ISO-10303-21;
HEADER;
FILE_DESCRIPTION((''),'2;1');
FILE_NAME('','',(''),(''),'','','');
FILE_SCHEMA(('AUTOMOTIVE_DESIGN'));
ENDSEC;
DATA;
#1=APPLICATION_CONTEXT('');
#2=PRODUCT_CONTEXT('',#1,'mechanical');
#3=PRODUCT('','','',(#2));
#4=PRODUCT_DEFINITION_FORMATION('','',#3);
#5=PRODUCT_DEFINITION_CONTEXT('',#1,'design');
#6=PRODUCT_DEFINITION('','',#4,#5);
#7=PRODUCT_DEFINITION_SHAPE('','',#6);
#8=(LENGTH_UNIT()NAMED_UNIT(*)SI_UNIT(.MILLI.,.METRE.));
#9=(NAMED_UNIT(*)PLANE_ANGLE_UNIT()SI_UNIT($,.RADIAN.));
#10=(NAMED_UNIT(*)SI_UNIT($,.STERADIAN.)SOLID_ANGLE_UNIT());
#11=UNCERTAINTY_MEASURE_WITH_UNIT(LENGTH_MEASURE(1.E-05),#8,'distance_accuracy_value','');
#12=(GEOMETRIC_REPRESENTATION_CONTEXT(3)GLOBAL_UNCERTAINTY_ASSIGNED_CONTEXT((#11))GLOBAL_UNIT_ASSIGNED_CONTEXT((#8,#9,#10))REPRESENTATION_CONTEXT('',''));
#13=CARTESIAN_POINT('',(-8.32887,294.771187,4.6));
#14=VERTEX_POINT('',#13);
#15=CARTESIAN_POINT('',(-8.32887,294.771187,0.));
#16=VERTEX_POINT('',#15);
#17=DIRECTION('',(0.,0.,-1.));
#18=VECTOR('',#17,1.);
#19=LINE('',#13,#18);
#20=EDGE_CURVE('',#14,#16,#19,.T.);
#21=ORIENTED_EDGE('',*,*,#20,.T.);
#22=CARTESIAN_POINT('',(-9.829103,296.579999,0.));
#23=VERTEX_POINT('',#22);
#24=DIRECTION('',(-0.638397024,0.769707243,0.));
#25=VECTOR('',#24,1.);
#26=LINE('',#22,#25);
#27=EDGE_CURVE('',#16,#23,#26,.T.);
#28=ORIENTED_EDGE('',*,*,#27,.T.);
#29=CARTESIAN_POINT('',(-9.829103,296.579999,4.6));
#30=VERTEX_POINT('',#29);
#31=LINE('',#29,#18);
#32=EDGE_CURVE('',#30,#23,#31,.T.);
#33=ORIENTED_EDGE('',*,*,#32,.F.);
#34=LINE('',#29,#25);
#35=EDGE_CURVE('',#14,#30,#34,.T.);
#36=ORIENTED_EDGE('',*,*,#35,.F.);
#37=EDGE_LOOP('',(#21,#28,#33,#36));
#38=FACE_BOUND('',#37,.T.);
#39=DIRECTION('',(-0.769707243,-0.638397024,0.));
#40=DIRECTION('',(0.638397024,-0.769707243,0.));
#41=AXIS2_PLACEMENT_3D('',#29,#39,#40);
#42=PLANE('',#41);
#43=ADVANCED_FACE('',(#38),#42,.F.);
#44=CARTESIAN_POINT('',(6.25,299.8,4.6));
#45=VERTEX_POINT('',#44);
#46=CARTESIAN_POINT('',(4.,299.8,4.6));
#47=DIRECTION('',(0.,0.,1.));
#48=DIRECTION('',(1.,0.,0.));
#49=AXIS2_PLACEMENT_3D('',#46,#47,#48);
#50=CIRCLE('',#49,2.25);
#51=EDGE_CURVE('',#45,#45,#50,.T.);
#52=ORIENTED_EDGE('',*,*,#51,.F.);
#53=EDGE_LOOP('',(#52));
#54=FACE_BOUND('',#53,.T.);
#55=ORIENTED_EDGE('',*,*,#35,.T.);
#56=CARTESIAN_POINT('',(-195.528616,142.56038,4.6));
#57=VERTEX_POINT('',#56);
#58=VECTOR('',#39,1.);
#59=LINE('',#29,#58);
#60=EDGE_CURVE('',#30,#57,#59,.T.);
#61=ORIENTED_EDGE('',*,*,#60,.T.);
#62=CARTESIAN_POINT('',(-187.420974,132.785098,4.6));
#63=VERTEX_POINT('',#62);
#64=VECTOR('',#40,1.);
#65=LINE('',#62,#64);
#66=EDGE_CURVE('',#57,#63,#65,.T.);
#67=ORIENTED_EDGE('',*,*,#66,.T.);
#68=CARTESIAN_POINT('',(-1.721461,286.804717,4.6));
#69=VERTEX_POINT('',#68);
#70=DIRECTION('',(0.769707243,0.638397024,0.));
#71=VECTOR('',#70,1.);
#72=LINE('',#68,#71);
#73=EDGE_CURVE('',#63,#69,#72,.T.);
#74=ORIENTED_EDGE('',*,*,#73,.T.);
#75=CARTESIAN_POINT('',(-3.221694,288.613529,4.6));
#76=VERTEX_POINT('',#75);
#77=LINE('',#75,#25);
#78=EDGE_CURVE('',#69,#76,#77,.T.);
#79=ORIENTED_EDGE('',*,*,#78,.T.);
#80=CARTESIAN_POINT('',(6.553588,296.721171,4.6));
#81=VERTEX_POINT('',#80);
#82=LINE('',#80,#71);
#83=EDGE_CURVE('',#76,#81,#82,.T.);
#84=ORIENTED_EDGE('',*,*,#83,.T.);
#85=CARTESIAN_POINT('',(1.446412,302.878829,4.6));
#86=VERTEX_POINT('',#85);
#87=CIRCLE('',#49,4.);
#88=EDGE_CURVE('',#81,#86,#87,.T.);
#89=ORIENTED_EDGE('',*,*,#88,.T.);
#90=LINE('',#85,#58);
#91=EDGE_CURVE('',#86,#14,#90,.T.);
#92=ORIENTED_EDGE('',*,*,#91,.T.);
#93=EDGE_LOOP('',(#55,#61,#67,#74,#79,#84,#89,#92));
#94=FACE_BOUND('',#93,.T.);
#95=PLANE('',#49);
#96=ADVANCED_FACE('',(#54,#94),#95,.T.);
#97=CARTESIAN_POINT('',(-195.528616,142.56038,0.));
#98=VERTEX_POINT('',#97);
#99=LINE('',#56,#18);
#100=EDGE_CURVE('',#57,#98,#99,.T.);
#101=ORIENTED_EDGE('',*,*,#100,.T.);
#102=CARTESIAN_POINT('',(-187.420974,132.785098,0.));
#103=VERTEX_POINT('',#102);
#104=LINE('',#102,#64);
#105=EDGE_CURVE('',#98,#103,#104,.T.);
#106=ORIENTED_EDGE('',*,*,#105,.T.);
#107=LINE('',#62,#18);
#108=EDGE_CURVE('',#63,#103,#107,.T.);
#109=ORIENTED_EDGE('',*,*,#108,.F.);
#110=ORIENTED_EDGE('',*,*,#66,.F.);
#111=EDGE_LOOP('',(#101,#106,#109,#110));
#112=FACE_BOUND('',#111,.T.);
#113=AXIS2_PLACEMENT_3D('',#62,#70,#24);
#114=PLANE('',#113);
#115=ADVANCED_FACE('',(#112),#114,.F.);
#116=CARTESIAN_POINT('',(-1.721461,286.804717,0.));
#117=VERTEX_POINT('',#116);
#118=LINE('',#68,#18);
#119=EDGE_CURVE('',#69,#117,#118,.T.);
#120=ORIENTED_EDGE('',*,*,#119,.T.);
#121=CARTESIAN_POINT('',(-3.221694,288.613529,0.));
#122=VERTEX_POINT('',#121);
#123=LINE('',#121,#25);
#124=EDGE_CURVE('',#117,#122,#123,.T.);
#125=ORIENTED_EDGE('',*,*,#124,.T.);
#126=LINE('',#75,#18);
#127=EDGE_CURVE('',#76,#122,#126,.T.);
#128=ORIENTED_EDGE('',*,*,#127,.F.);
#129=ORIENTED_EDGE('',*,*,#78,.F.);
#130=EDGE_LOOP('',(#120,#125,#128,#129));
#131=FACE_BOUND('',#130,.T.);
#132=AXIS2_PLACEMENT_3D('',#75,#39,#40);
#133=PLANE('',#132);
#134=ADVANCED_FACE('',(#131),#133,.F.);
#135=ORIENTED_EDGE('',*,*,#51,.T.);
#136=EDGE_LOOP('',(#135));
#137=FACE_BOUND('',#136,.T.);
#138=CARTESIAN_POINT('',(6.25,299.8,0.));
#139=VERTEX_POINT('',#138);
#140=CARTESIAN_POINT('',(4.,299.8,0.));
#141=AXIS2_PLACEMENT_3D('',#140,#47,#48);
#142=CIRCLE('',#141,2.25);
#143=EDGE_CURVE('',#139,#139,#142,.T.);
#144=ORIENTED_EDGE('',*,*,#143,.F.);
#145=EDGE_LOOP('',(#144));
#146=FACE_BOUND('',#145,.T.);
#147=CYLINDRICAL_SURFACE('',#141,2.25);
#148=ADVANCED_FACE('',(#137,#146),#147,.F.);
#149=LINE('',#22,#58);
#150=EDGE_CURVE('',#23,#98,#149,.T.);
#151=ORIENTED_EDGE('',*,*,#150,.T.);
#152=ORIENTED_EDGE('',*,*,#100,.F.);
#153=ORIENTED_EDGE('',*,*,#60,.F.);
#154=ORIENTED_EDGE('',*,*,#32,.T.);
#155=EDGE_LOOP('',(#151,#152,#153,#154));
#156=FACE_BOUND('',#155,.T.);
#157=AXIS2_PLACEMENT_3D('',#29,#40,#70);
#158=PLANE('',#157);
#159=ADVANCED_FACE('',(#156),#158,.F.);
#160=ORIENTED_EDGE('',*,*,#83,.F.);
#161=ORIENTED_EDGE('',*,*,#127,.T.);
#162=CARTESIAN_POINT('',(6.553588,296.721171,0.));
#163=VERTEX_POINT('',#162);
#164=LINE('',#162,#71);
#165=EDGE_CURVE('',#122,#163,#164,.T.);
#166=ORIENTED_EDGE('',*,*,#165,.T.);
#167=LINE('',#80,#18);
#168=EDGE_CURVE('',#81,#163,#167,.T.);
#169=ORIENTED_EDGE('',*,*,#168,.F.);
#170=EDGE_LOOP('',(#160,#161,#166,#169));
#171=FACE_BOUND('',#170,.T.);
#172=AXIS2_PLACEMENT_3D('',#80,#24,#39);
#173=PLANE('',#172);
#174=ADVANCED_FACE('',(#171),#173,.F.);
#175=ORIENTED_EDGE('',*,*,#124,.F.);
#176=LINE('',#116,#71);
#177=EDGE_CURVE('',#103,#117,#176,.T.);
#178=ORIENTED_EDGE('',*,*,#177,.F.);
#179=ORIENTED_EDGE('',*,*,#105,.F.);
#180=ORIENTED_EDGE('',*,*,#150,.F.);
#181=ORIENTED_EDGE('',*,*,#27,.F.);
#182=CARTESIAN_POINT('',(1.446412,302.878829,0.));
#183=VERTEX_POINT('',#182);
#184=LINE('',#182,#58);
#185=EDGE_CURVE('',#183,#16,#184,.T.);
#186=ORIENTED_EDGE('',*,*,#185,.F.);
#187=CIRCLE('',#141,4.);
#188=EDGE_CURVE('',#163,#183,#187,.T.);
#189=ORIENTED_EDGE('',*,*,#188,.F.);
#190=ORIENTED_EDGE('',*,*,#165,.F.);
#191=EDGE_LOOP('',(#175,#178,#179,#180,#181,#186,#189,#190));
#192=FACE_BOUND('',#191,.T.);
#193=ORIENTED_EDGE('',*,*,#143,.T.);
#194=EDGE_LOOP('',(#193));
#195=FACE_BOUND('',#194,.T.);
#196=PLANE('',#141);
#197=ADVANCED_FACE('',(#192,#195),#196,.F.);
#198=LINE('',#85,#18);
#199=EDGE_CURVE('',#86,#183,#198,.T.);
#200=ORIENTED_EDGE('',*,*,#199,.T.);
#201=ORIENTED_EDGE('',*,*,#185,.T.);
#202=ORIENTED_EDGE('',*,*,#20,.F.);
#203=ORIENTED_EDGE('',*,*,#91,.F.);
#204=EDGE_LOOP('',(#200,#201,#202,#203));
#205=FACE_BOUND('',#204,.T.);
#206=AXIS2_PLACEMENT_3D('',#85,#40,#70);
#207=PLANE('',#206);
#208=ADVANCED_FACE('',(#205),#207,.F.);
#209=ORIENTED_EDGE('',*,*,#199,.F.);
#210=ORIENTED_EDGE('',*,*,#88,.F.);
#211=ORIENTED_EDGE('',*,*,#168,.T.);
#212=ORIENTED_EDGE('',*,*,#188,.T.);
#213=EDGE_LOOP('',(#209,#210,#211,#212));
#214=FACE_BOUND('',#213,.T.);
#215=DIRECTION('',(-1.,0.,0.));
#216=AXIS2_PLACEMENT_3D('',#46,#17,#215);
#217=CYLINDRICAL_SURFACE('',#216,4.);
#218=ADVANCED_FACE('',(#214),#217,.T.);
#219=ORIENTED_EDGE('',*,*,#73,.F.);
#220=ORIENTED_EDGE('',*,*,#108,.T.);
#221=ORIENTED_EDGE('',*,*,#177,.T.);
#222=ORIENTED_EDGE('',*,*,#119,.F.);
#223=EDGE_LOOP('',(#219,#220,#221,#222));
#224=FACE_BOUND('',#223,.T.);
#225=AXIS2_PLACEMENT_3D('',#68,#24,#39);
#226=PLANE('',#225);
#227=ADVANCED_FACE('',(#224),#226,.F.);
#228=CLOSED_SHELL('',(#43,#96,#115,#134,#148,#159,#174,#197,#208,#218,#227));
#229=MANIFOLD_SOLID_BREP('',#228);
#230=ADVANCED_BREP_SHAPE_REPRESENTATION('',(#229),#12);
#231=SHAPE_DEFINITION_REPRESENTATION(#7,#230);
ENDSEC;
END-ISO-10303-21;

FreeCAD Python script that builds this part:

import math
import FreeCAD as App
import Part
import Sketcher

doc = App.newDocument("Part")
body = doc.addObject("PartDesign::Body", "Body")

sketch1 = body.newObject("Sketcher::SketchObject", "Sketch")
sketch1.AttachmentSupport = (doc.getObject("XY_Plane"), [""])
sketch1.MapMode = "FlatFace"
sketch1.addGeometry(Part.LineSegment(App.Vector(-3.2, 288.6, 0), App.Vector(6.6, 296.7, 0)), False)
sketch1.addGeometry(Part.ArcOfCircle(Part.Circle(App.Vector(4, 299.8, 0), App.Vector(0, 0, 1), 4), math.radians(-50), math.radians(130)), False)
sketch1.addGeometry(Part.LineSegment(App.Vector(1.4, 302.9, 0), App.Vector(-8.3, 294.8, 0)), False)
sketch1.addGeometry(Part.LineSegment(App.Vector(-8.3, 294.8, 0), App.Vector(-9.8, 296.6, 0)), False)
sketch1.addGeometry(Part.LineSegment(App.Vector(-9.8, 296.6, 0), App.Vector(-195.5, 142.6, 0)), False)
sketch1.addGeometry(Part.LineSegment(App.Vector(-195.5, 142.6, 0), App.Vector(-187.4, 132.8, 0)), False)
sketch1.addGeometry(Part.LineSegment(App.Vector(-187.4, 132.8, 0), App.Vector(-1.7, 286.8, 0)), False)
sketch1.addGeometry(Part.LineSegment(App.Vector(-1.7, 286.8, 0), App.Vector(-3.2, 288.6, 0)), False)
sketch1.addConstraint(Sketcher.Constraint("Tangent", 0, 2, 1, 1))
sketch1.addConstraint(Sketcher.Constraint("Tangent", 1, 2, 2, 1))
sketch1.addConstraint(Sketcher.Constraint("Coincident", 2, 2, 3, 1))
sketch1.addConstraint(Sketcher.Constraint("Coincident", 3, 2, 4, 1))
sketch1.addConstraint(Sketcher.Constraint("Coincident", 4, 2, 5, 1))
sketch1.addConstraint(Sketcher.Constraint("Coincident", 5, 2, 6, 1))
sketch1.addConstraint(Sketcher.Constraint("Coincident", 6, 2, 7, 1))
sketch1.addConstraint(Sketcher.Constraint("Coincident", 7, 2, 0, 1))
sketch1.addConstraint(Sketcher.Constraint("Parallel", 0, 2))
sketch1.addConstraint(Sketcher.Constraint("Perpendicular", 2, 3))
sketch1.addConstraint(Sketcher.Constraint("Perpendicular", 3, 4))
sketch1.addConstraint(Sketcher.Constraint("Perpendicular", 4, 5))
sketch1.addConstraint(Sketcher.Constraint("Perpendicular", 5, 6))
sketch1.addConstraint(Sketcher.Constraint("Perpendicular", 6, 7))
sketch1.addConstraint(Sketcher.Constraint("Equal", 0, 2))
sketch1.addConstraint(Sketcher.Constraint("Equal", 2, 5))
sketch1.addConstraint(Sketcher.Constraint("Equal", 3, 7))
sketch1.addConstraint(Sketcher.Constraint("Radius", 1, 4.0))
sketch1.addConstraint(Sketcher.Constraint("DistanceX", -1, 1, 1, 3, 4.0))
sketch1.addConstraint(Sketcher.Constraint("Distance", 0, 12.7))
sketch1.addConstraint(Sketcher.Constraint("DistanceY", -1, 1, 1, 3, 299.8))
sketch1.addConstraint(Sketcher.Constraint("DistanceY", -1, 1, 3, 2, 296.579999))
sketch1.addConstraint(Sketcher.Constraint("DistanceY", 5, 2, 3, 2, 163.794901))
pad1 = body.newObject("PartDesign::Pad", "Pad")
pad1.Profile = sketch1
pad1.Length = 4.6

sketch2 = body.newObject("Sketcher::SketchObject", "Sketch001")
sketch2.AttachmentSupport = (doc.getObject("XY_Plane"), [""])
sketch2.MapMode = "FlatFace"
sketch2.AttachmentOffset = App.Placement(App.Vector(0, 0, 4.6), App.Rotation())
sketch2.addGeometry(Part.Circle(App.Vector(4, 299.8, 0), App.Vector(0, 0, 1), 2.2), False)
sketch2.addConstraint(Sketcher.Constraint("Diameter", 0, 4.5))
sketch2.addConstraint(Sketcher.Constraint("DistanceX", -1, 1, 0, 3, 4.0))
sketch2.addConstraint(Sketcher.Constraint("DistanceY", -1, 1, 0, 3, 299.8))
pocket1 = body.newObject("PartDesign::Pocket", "Pocket")
pocket1.Profile = sketch2
pocket1.Type = "ThroughAll"

doc.recompute()
